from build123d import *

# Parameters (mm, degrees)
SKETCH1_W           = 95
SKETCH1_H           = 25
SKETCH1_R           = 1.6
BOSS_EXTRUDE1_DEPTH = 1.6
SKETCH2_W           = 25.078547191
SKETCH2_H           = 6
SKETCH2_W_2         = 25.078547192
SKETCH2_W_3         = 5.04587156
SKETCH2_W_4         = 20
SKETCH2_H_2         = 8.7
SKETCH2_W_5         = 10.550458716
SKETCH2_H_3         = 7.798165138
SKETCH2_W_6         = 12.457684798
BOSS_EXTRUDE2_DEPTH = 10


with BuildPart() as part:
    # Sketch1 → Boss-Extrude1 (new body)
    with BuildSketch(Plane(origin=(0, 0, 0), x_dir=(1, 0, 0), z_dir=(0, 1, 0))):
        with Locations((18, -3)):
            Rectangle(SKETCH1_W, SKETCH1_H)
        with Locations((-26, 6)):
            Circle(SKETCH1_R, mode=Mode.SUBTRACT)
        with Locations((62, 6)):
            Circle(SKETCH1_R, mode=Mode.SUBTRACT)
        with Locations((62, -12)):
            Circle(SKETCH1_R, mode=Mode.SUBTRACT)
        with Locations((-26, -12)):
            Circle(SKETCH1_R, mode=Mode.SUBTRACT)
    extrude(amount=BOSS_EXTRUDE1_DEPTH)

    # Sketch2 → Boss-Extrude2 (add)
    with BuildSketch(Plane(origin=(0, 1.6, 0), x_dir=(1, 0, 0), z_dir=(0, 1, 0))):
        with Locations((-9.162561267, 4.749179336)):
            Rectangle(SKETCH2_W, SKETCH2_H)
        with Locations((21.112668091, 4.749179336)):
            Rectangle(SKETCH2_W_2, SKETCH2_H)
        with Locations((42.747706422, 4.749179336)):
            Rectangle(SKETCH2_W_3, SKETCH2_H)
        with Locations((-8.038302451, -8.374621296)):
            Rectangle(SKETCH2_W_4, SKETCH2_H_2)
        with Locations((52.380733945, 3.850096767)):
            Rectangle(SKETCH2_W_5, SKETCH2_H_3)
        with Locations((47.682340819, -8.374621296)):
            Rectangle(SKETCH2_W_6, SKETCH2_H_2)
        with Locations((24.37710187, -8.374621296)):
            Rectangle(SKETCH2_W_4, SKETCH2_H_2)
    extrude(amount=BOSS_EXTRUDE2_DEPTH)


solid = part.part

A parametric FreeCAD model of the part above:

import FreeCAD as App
import Part
import Sketcher
from FreeCAD import Vector
Q = App.Units.Quantity

doc = App.newDocument("Part")
body = doc.addObject("PartDesign::Body", "Body")

sketch1 = doc.addObject("Sketcher::SketchObject", "Sketch")
body.addObject(sketch1)
sketch1.AttachmentSupport = (doc.XZ_Plane, [""])
sketch1.MapMode = "FlatFace"
sketch1.addGeometry(Part.LineSegment(Vector(-29.5, -9.5, 0), Vector(-29.5, 15.5, 0)), False)
sketch1.addGeometry(Part.LineSegment(Vector(-29.5, 15.5, 0), Vector(65.5, 15.5, 0)), False)
sketch1.addGeometry(Part.LineSegment(Vector(65.5, 15.5, 0), Vector(65.5, -9.5, 0)), False)
sketch1.addGeometry(Part.LineSegment(Vector(65.5, -9.5, 0), Vector(-29.5, -9.5, 0)), False)
sketch1.addGeometry(Part.Circle(Vector(-26, 12, 0), Vector(0, 0, 1), 1.6), False)
sketch1.addGeometry(Part.Circle(Vector(62, 12, 0), Vector(0, 0, 1), 1.6), False)
sketch1.addGeometry(Part.Circle(Vector(-26, -6, 0), Vector(0, 0, 1), 1.6), False)
sketch1.addGeometry(Part.Circle(Vector(62, -6, 0), Vector(0, 0, 1), 1.6), False)
sketch1.addConstraint(Sketcher.Constraint("Coincident", 0, 2, 1, 1))
sketch1.addConstraint(Sketcher.Constraint("Coincident", 1, 2, 2, 1))
sketch1.addConstraint(Sketcher.Constraint("Coincident", 2, 2, 3, 1))
sketch1.addConstraint(Sketcher.Constraint("Coincident", 3, 2, 0, 1))
sketch1.addConstraint(Sketcher.Constraint("Vertical", 0))
sketch1.addConstraint(Sketcher.Constraint("Horizontal", 1))
sketch1.addConstraint(Sketcher.Constraint("Vertical", 2))
sketch1.addConstraint(Sketcher.Constraint("Horizontal", 3))
sketch1.addConstraint(Sketcher.Constraint("Equal", 4, 5))
sketch1.addConstraint(Sketcher.Constraint("Equal", 5, 6))
sketch1.addConstraint(Sketcher.Constraint("Equal", 6, 7))
sketch1.addConstraint(Sketcher.Constraint("Horizontal", 4, 3, 5, 3))
sketch1.addConstraint(Sketcher.Constraint("Horizontal", 6, 3, 7, 3))
sketch1.addConstraint(Sketcher.Constraint("Vertical", 4, 3, 6, 3))
sketch1.addConstraint(Sketcher.Constraint("Vertical", 5, 3, 7, 3))
sketch1.addConstraint(Sketcher.Constraint("Diameter", 4, Q("3.2 mm")))
sketch1.addConstraint(Sketcher.Constraint("DistanceX", 1, 1, 1, 2, Q("95 mm")))
sketch1.addConstraint(Sketcher.Constraint("DistanceY", 0, 1, 0, 2, Q("25 mm")))
sketch1.addConstraint(Sketcher.Constraint("DistanceX", 4, 3, -1, 1, Q("26 mm")))
sketch1.addConstraint(Sketcher.Constraint("DistanceY", -1, 1, 4, 3, Q("12 mm")))
sketch1.addConstraint(Sketcher.Constraint("DistanceX", -1, 1, 5, 3, Q("62 mm")))
sketch1.addConstraint(Sketcher.Constraint("DistanceY", 6, 3, -1, 1, Q("6 mm")))
sketch1.addConstraint(Sketcher.Constraint("DistanceX", 0, 2, -1, 1, Q("29.5 mm")))
sketch1.addConstraint(Sketcher.Constraint("DistanceY", -1, 1, 0, 2, Q("15.5 mm")))
pad1 = doc.addObject("PartDesign::Pad", "Pad")
body.addObject(pad1)
pad1.Profile = sketch1
pad1.Length = 1.6
pad1.Reversed = True

sketch2 = doc.addObject("Sketcher::SketchObject", "Sketch001")
body.addObject(sketch2)
sketch2.AttachmentSupport = (doc.XZ_Plane, [""])
sketch2.MapMode = "FlatFace"
sketch2.AttachmentOffset = App.Placement(Vector(0, 0, -1.6), App.Rotation())
sketch2.addGeometry(Part.LineSegment(Vector(-22, -8, 0), Vector(-22, -2, 0)), False)
sketch2.addGeometry(Part.LineSegment(Vector(-22, -2, 0), Vector(3, -2, 0)), False)
sketch2.addGeometry(Part.LineSegment(Vector(3, -2, 0), Vector(3, -8, 0)), False)
sketch2.addGeometry(Part.LineSegment(Vector(3, -8, 0), Vector(-22, -8, 0)), False)
sketch2.addGeometry(Part.LineSegment(Vector(9, -8, 0), Vector(9, -2, 0)), False)
sketch2.addGeometry(Part.LineSegment(Vector(9, -2, 0), Vector(34, -2, 0)), False)
sketch2.addGeometry(Part.LineSegment(Vector(34, -2, 0), Vector(34, -8, 0)), False)
sketch2.addGeometry(Part.LineSegment(Vector(34, -8, 0), Vector(9, -8, 0)), False)
sketch2.addGeometry(Part.LineSegment(Vector(40, -8, 0), Vector(40, -2, 0)), False)
sketch2.addGeometry(Part.LineSegment(Vector(40, -2, 0), Vector(45, -2, 0)), False)
sketch2.addGeometry(Part.LineSegment(Vector(45, -2, 0), Vector(45, -8, 0)), False)
sketch2.addGeometry(Part.LineSegment(Vector(45, -8, 0), Vector(40, -8, 0)), False)
sketch2.addGeometry(Part.LineSegment(Vector(-18, 4, 0), Vector(-18, 13, 0)), False)
sketch2.addGeometry(Part.LineSegment(Vector(-18, 13, 0), Vector(2, 13, 0)), False)
sketch2.addGeometry(Part.LineSegment(Vector(2, 13, 0), Vector(2, 4, 0)), False)
sketch2.addGeometry(Part.LineSegment(Vector(2, 4, 0), Vector(-18, 4, 0)), False)
sketch2.addGeometry(Part.LineSegment(Vector(47, -8, 0), Vector(47, 0, 0)), False)
sketch2.addGeometry(Part.LineSegment(Vector(47, 0, 0), Vector(58, 0, 0)), False)
sketch2.addGeometry(Part.LineSegment(Vector(58, 0, 0), Vector(58, -8, 0)), False)
sketch2.addGeometry(Part.LineSegment(Vector(58, -8, 0), Vector(47, -8, 0)), False)
sketch2.addGeometry(Part.LineSegment(Vector(41, 4, 0), Vector(41, 13, 0)), False)
sketch2.addGeometry(Part.LineSegment(Vector(41, 13, 0), Vector(54, 13, 0)), False)
sketch2.addGeometry(Part.LineSegment(Vector(54, 13, 0), Vector(54, 4, 0)), False)
sketch2.addGeometry(Part.LineSegment(Vector(54, 4, 0), Vector(41, 4, 0)), False)
sketch2.addGeometry(Part.LineSegment(Vector(14, 4, 0), Vector(14, 13, 0)), False)
sketch2.addGeometry(Part.LineSegment(Vector(14, 13, 0), Vector(34, 13, 0)), False)
sketch2.addGeometry(Part.LineSegment(Vector(34, 13, 0), Vector(34, 4, 0)), False)
sketch2.addGeometry(Part.LineSegment(Vector(34, 4, 0), Vector(14, 4, 0)), False)
sketch2.addConstraint(Sketcher.Constraint("Coincident", 0, 2, 1, 1))
sketch2.addConstraint(Sketcher.Constraint("Coincident", 1, 2, 2, 1))
sketch2.addConstraint(Sketcher.Constraint("Coincident", 2, 2, 3, 1))
sketch2.addConstraint(Sketcher.Constraint("Coincident", 3, 2, 0, 1))
sketch2.addConstraint(Sketcher.Constraint("Coincident", 4, 2, 5, 1))
sketch2.addConstraint(Sketcher.Constraint("Coincident", 5, 2, 6, 1))
sketch2.addConstraint(Sketcher.Constraint("Coincident", 6, 2, 7, 1))
sketch2.addConstraint(Sketcher.Constraint("Coincident", 7, 2, 4, 1))
sketch2.addConstraint(Sketcher.Constraint("Coincident", 8, 2, 9, 1))
sketch2.addConstraint(Sketcher.Constraint("Coincident", 9, 2, 10, 1))
sketch2.addConstraint(Sketcher.Constraint("Coincident", 10, 2, 11, 1))
sketch2.addConstraint(Sketcher.Constraint("Coincident", 11, 2, 8, 1))
sketch2.addConstraint(Sketcher.Constraint("Coincident", 12, 2, 13, 1))
sketch2.addConstraint(Sketcher.Constraint("Coincident", 13, 2, 14, 1))
sketch2.addConstraint(Sketcher.Constraint("Coincident", 14, 2, 15, 1))
sketch2.addConstraint(Sketcher.Constraint("Coincident", 15, 2, 12, 1))
sketch2.addConstraint(Sketcher.Constraint("Coincident", 16, 2, 17, 1))
sketch2.addConstraint(Sketcher.Constraint("Coincident", 17, 2, 18, 1))
sketch2.addConstraint(Sketcher.Constraint("Coincident", 18, 2, 19, 1))
sketch2.addConstraint(Sketcher.Constraint("Coincident", 19, 2, 16, 1))
sketch2.addConstraint(Sketcher.Constraint("Coincident", 20, 2, 21, 1))
sketch2.addConstraint(Sketcher.Constraint("Coincident", 21, 2, 22, 1))
sketch2.addConstraint(Sketcher.Constraint("Coincident", 22, 2, 23, 1))
sketch2.addConstraint(Sketcher.Constraint("Coincident", 23, 2, 20, 1))
sketch2.addConstraint(Sketcher.Constraint("Coincident", 24, 2, 25, 1))
sketch2.addConstraint(Sketcher.Constraint("Coincident", 25, 2, 26, 1))
sketch2.addConstraint(Sketcher.Constraint("Coincident", 26, 2, 27, 1))
sketch2.addConstraint(Sketcher.Constraint("Coincident", 27, 2, 24, 1))
sketch2.addConstraint(Sketcher.Constraint("Vertical", 0))
sketch2.addConstraint(Sketcher.Constraint("Horizontal", 1))
sketch2.addConstraint(Sketcher.Constraint("Vertical", 2))
sketch2.addConstraint(Sketcher.Constraint("Horizontal", 3))
sketch2.addConstraint(Sketcher.Constraint("Vertical", 4))
sketch2.addConstraint(Sketcher.Constraint("Horizontal", 5))
sketch2.addConstraint(Sketcher.Constraint("Vertical", 6))
sketch2.addConstraint(Sketcher.Constraint("Horizontal", 7))
sketch2.addConstraint(Sketcher.Constraint("Vertical", 8))
sketch2.addConstraint(Sketcher.Constraint("Horizontal", 9))
sketch2.addConstraint(Sketcher.Constraint("Vertical", 10))
sketch2.addConstraint(Sketcher.Constraint("Horizontal", 11))
sketch2.addConstraint(Sketcher.Constraint("Vertical", 12))
sketch2.addConstraint(Sketcher.Constraint("Horizontal", 13))
sketch2.addConstraint(Sketcher.Constraint("Vertical", 14))
sketch2.addConstraint(Sketcher.Constraint("Horizontal", 15))
sketch2.addConstraint(Sketcher.Constraint("Vertical", 16))
sketch2.addConstraint(Sketcher.Constraint("Horizontal", 17))
sketch2.addConstraint(Sketcher.Constraint("Vertical", 18))
sketch2.addConstraint(Sketcher.Constraint("Horizontal", 19))
sketch2.addConstraint(Sketcher.Constraint("Vertical", 20))
sketch2.addConstraint(Sketcher.Constraint("Horizontal", 21))
sketch2.addConstraint(Sketcher.Constraint("Vertical", 22))
sketch2.addConstraint(Sketcher.Constraint("Horizontal", 23))
sketch2.addConstraint(Sketcher.Constraint("Vertical", 24))
sketch2.addConstraint(Sketcher.Constraint("Horizontal", 25))
sketch2.addConstraint(Sketcher.Constraint("Vertical", 26))
sketch2.addConstraint(Sketcher.Constraint("Horizontal", 27))
sketch2.addConstraint(Sketcher.Constraint("Horizontal", 1, 2, 4, 2))
sketch2.addConstraint(Sketcher.Constraint("Horizontal", 3, 2, 6, 2))
sketch2.addConstraint(Sketcher.Constraint("Horizontal", 5, 2, 8, 2))
sketch2.addConstraint(Sketcher.Constraint("Horizontal", 7, 2, 10, 2))
sketch2.addConstraint(Sketcher.Constraint("Horizontal", 11, 2, 18, 2))
sketch2.addConstraint(Sketcher.Constraint("Horizontal", 13, 2, 20, 2))
sketch2.addConstraint(Sketcher.Constraint("Horizontal", 15, 2, 22, 2))
sketch2.addConstraint(Sketcher.Constraint("Horizontal", 21, 2, 24, 2))
sketch2.addConstraint(Sketcher.Constraint("Horizontal", 23, 2, 26, 2))
sketch2.addConstraint(Sketcher.Constraint("Equal", 3, 5))
sketch2.addConstraint(Sketcher.Constraint("Equal", 15, 25))
sketch2.addConstraint(Sketcher.Constraint("DistanceX", 13, 1, 13, 2, Q("20 mm")))
sketch2.addConstraint(Sketcher.Constraint("DistanceY", 0, 1, 0, 2, Q("6 mm")))
sketch2.addConstraint(Sketcher.Constraint("DistanceY", 12, 1, 12, 2, Q("8.7 mm")))
sketch2.addConstraint(Sketcher.Constraint("DistanceX", 9, 1, 9, 2, Q("5.045872 mm")))
sketch2.addConstraint(Sketcher.Constraint("DistanceX", 17, 1, 17, 2, Q("10.550459 mm")))
sketch2.addConstraint(Sketcher.Constraint("DistanceX", -1, 1, 20, 2, Q("41.453498 mm")))
sketch2.addConstraint(Sketcher.Constraint("DistanceX", -1, 1, 24, 2, Q("14.377102 mm")))
sketch2.addConstraint(Sketcher.Constraint("DistanceX", 5, 2, 9, 2, Q("11.618701 mm")))
sketch2.addConstraint(Sketcher.Constraint("DistanceY", 0, 2, 12, 2, Q("14.473801 mm")))
sketch2.addConstraint(Sketcher.Constraint("DistanceX", 1, 1, 1, 2, Q("25.078547 mm")))
sketch2.addConstraint(Sketcher.Constraint("DistanceX", 21, 1, 21, 2, Q("12.457685 mm")))
sketch2.addConstraint(Sketcher.Constraint("DistanceY", 16, 1, 16, 2, Q("7.798165 mm")))
sketch2.addConstraint(Sketcher.Constraint("DistanceY", 0, 2, -1, 1, Q("1.749179 mm")))
sketch2.addConstraint(Sketcher.Constraint("DistanceX", -1, 1, 5, 2, Q("33.651942 mm")))
sketch2.addConstraint(Sketcher.Constraint("DistanceX", 0, 2, 4, 2, Q("30.275229 mm")))
sketch2.addConstraint(Sketcher.Constraint("DistanceX", 9, 2, 17, 2, Q("12.385321 mm")))
sketch2.addConstraint(Sketcher.Constraint("DistanceX", 12, 2, -1, 1, Q("18.038302 mm")))
pad2 = doc.addObject("PartDesign::Pad", "Pad001")
body.addObject(pad2)
pad2.Profile = sketch2
pad2.Length = 10
pad2.Reversed = True

doc.recompute()
